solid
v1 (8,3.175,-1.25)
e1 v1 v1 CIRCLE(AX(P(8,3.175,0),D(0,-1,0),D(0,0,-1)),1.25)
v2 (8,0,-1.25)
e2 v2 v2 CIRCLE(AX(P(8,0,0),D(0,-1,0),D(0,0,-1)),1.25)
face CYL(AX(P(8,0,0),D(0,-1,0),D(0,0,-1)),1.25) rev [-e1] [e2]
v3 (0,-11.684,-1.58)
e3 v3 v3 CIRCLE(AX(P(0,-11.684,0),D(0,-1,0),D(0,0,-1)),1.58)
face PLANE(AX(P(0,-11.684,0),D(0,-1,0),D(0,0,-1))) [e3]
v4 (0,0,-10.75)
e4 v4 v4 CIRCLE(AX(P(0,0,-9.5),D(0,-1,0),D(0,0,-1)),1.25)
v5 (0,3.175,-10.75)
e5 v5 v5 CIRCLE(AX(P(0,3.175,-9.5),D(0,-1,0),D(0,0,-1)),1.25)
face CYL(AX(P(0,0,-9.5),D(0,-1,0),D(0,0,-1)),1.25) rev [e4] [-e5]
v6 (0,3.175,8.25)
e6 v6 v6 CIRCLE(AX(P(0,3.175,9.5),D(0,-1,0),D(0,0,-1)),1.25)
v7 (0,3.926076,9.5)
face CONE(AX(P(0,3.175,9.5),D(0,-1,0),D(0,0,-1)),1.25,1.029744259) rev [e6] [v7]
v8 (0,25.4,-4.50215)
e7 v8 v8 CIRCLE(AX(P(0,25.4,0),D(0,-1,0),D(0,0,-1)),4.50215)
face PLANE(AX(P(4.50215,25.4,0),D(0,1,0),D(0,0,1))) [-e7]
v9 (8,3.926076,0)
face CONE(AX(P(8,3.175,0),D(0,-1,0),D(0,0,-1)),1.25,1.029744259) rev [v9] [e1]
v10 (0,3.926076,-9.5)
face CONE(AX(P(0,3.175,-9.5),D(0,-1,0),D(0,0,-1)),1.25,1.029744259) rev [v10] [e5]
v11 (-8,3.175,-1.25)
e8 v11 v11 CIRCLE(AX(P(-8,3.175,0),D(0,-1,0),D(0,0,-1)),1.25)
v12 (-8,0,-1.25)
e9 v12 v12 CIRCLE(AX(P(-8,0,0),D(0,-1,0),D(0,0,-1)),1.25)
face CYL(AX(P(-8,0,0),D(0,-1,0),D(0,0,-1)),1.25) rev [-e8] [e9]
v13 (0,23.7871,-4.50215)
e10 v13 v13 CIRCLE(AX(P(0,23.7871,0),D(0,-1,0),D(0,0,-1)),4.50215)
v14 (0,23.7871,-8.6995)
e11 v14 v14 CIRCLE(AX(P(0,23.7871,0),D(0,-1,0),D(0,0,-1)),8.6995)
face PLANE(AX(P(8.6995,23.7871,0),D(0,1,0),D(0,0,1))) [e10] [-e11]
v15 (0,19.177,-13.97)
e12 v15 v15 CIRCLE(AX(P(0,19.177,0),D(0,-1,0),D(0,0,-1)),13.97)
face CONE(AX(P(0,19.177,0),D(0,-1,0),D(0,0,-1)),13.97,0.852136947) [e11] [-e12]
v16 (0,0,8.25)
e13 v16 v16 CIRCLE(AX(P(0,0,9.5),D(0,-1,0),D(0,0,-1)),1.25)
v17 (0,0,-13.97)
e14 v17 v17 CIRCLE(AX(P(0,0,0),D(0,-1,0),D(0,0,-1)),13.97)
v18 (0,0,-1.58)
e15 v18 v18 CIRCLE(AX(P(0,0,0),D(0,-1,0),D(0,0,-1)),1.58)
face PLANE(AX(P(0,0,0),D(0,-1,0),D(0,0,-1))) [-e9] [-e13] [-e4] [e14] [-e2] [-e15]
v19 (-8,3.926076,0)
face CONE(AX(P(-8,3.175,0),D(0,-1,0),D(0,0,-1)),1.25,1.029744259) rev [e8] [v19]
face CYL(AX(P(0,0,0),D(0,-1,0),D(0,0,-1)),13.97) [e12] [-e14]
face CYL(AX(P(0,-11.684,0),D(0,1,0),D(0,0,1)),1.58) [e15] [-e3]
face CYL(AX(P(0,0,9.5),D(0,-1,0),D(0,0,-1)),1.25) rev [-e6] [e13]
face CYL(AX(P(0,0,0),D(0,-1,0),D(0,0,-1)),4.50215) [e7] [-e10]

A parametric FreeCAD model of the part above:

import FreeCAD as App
import Part
import Sketcher
Q = App.Units.Quantity

doc = App.newDocument("Part")
body = doc.addObject("PartDesign::Body", "Body")

# Sketch on XY plane
sketch1 = doc.addObject("Sketcher::SketchObject", "Sketch")
body.addObject(sketch1)
sketch1.AttachmentSupport = (doc.XY_Plane, [""])
sketch1.MapMode = "FlatFace"
sketch1.addGeometry([
    Part.LineSegment(App.Vector(0, 0, 0), App.Vector(14, 0, 0)),  # 0
    Part.LineSegment(App.Vector(14, 0, 0), App.Vector(14, 19.2, 0)),  # 1
    Part.LineSegment(App.Vector(14, 19.2, 0), App.Vector(8.7, 23.8, 0)),  # 2
    Part.LineSegment(App.Vector(8.7, 23.8, 0), App.Vector(4.5, 23.8, 0)),  # 3
    Part.LineSegment(App.Vector(4.5, 23.8, 0), App.Vector(4.5, 25.4, 0)),  # 4
    Part.LineSegment(App.Vector(4.5, 25.4, 0), App.Vector(0, 25.4, 0)),  # 5
    Part.LineSegment(App.Vector(0, 25.4, 0), App.Vector(0, 0, 0)),  # 6
], False)
sketch1.addConstraint([
    Sketcher.Constraint("Coincident", 0, 2, 1, 1),
    Sketcher.Constraint("Coincident", 1, 2, 2, 1),
    Sketcher.Constraint("Coincident", 2, 2, 3, 1),
    Sketcher.Constraint("Coincident", 3, 2, 4, 1),
    Sketcher.Constraint("Coincident", 4, 2, 5, 1),
    Sketcher.Constraint("Coincident", 5, 2, 6, 1),
    Sketcher.Constraint("Coincident", 6, 2, 0, 1),
    Sketcher.Constraint("Horizontal", 0),
    Sketcher.Constraint("Vertical", 1),
    Sketcher.Constraint("Horizontal", 3),
    Sketcher.Constraint("Vertical", 4),
    Sketcher.Constraint("Horizontal", 5),
    Sketcher.Constraint("Vertical", 6),
    Sketcher.Constraint("Coincident", 6, 2, -1, 1),
    Sketcher.Constraint("DistanceY", 6, 2, 6, 1, Q("1 in")),
    Sketcher.Constraint("DistanceX", 0, 1, 0, 2, Q("0.55 in")),
    Sketcher.Constraint("DistanceY", 1, 1, 1, 2, Q("0.755 in")),
    Sketcher.Constraint("DistanceY", 4, 1, 4, 2, Q("0.0635 in")),
    Sketcher.Constraint("DistanceX", -1, 1, 2, 2, Q("0.3425 in")),
    Sketcher.Constraint("DistanceX", 3, 2, 3, 1, Q("4.19735 mm")),
])
revolution = doc.addObject("PartDesign::Revolution", "Revolution")
body.addObject(revolution)
revolution.Profile = sketch1
revolution.ReferenceAxis = (sketch1, ["V_Axis"])
revolution.Angle = 360

# Sketch on XZ plane
sketch2 = doc.addObject("Sketcher::SketchObject", "Sketch001")
body.addObject(sketch2)
sketch2.AttachmentSupport = (doc.XZ_Plane, [""])
sketch2.MapMode = "FlatFace"
sketch2.addGeometry(Part.Circle(App.Vector(0, 0, 0), App.Vector(0, 0, 1), 1.6), False)
sketch2.addConstraint([
    Sketcher.Constraint("Coincident", 0, 3, -1, 1),
    Sketcher.Constraint("Diameter", 0, Q("3.16 mm")),
])
pad1 = doc.addObject("PartDesign::Pad", "Pad")
body.addObject(pad1)
pad1.Profile = sketch2
pad1.Length = Q("0.46 in")

# Sketch on XZ plane
sketch3 = doc.addObject("Sketcher::SketchObject", "Sketch002")
body.addObject(sketch3)
sketch3.AttachmentSupport = (doc.XZ_Plane, [""])
sketch3.MapMode = "FlatFace"
sketch3.addGeometry([
    Part.Circle(App.Vector(8, 0, 0), App.Vector(0, 0, 1), 1.2),
    Part.Circle(App.Vector(-8, 0, 0), App.Vector(0, 0, 1), 1.2),
    Part.Circle(App.Vector(0, 9.5, 0), App.Vector(0, 0, 1), 1.2),
    Part.Circle(App.Vector(0, -9.5, 0), App.Vector(0, 0, 1), 1.2),
], False)
sketch3.addConstraint([
    Sketcher.Constraint("Equal", 0, 1),
    Sketcher.Constraint("Equal", 1, 2),
    Sketcher.Constraint("Equal", 2, 3),
    Sketcher.Constraint("Symmetric", 0, 3, 1, 3, -1, 1),
    Sketcher.Constraint("Symmetric", 2, 3, 3, 3, -1, 1),
    Sketcher.Constraint("PointOnObject", 0, 3, -1),
    Sketcher.Constraint("PointOnObject", 2, 3, -2),
    Sketcher.Constraint("Diameter", 0, Q("2.5 mm")),
    Sketcher.Constraint("DistanceX", -1, 1, 0, 3, Q("8 mm")),
    Sketcher.Constraint("DistanceY", -1, 1, 2, 3, Q("9.5 mm")),
])
doc.recompute()
hole = doc.addObject("PartDesign::Hole", "Hole")
body.addObject(hole)
hole.Profile = sketch3
hole.ThreadType = "None"
hole.Diameter = 2.5
hole.DepthType = "Dimension"
hole.Depth = Q("0.125 in")
hole.DrillPoint = "Angled"
hole.DrillPointAngle = 118

doc.recompute()
